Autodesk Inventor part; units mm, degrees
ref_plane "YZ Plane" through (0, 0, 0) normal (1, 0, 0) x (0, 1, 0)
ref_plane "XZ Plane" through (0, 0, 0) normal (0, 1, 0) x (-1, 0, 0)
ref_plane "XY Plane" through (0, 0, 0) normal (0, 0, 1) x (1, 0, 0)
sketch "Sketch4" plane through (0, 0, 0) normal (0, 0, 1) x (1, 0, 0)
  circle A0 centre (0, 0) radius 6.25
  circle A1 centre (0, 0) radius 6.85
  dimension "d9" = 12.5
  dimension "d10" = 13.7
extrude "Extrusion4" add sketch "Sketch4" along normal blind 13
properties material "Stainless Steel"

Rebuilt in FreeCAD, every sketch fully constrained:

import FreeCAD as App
import Part
import Sketcher
Q = App.Units.Quantity

doc = App.newDocument("Part")
body = doc.addObject("PartDesign::Body", "Body")

# Sketch on XY plane
sketch1 = body.newObject("Sketcher::SketchObject", "Sketch")
sketch1.AttachmentSupport = (doc.getObject("XY_Plane"), [""])
sketch1.MapMode = "FlatFace"
sketch1.addGeometry(Part.Circle(App.Vector(0, 0, 0), App.Vector(0, 0, 1), 7), False)
sketch1.addGeometry(Part.Circle(App.Vector(0, 0, 0), App.Vector(0, 0, 1), 6), False)
sketch1.addConstraint(Sketcher.Constraint("Coincident", 0, 3, -1, 1))
sketch1.addConstraint(Sketcher.Constraint("Coincident", 1, 3, -1, 1))
sketch1.addConstraint(Sketcher.Constraint("Diameter", 0, Q("13.7 mm")))
sketch1.addConstraint(Sketcher.Constraint("Diameter", 1, Q("12.5 mm")))
pad1 = body.newObject("PartDesign::Pad", "Pad")
pad1.Profile = sketch1
pad1.Length = 13

doc.recompute()
